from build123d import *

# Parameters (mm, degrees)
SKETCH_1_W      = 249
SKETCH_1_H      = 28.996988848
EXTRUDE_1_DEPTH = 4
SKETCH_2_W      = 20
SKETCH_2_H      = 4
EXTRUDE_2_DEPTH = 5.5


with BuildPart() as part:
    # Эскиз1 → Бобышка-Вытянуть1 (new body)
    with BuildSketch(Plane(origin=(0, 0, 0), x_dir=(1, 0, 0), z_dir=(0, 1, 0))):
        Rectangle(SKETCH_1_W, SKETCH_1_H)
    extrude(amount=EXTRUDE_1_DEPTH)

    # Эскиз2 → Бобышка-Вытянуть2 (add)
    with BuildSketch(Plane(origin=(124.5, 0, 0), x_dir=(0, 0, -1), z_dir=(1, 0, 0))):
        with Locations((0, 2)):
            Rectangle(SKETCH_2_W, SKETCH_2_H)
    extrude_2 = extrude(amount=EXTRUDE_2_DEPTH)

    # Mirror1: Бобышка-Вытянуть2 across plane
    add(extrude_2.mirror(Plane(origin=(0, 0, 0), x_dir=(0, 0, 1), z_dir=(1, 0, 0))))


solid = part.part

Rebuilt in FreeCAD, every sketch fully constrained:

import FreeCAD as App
import Part
import Sketcher
Q = App.Units.Quantity


def add_polygon(sketch, points):
    """Adds a closed chain of lines whose ends are joined by coincident constraints."""
    first, n = sketch.GeometryCount, len(points)
    for a, b in zip(points, points[1:] + points[:1]):
        sketch.addGeometry(Part.LineSegment(App.Vector(*a, 0), App.Vector(*b, 0)), False)
    for i in range(n):
        sketch.addConstraint(Sketcher.Constraint("Coincident", first + i, 2, first + (i + 1) % n, 1))

doc = App.newDocument("Part")
body = doc.addObject("PartDesign::Body", "Body")

# Sketch on XZ plane
sketch1 = body.newObject("Sketcher::SketchObject", "Sketch")
sketch1.AttachmentSupport = (doc.getObject("XZ_Plane"), [""])
sketch1.MapMode = "FlatFace"
add_polygon(sketch1, [(-124, -14), (-124, 14), (124, 14), (124, -14)])  # lines 0-3
sketch1.addConstraint(Sketcher.Constraint("Vertical", 0))
sketch1.addConstraint(Sketcher.Constraint("Horizontal", 1))
sketch1.addConstraint(Sketcher.Constraint("Vertical", 2))
sketch1.addConstraint(Sketcher.Constraint("Horizontal", 3))
sketch1.addConstraint(Sketcher.Constraint("Symmetric", 0, 2, 2, 2, -1, 1))
sketch1.addConstraint(Sketcher.Constraint("DistanceX", 1, 1, 1, 2, Q("249 mm")))
sketch1.addConstraint(Sketcher.Constraint("DistanceY", 0, 1, 0, 2, Q("28.996989 mm")))
pad1 = body.newObject("PartDesign::Pad", "Pad")
pad1.Profile = sketch1
pad1.Length = 4
pad1.Reversed = True

# Sketch on YZ plane
sketch2 = body.newObject("Sketcher::SketchObject", "Sketch001")
sketch2.AttachmentSupport = (doc.getObject("YZ_Plane"), [""])
sketch2.MapMode = "FlatFace"
sketch2.AttachmentOffset = App.Placement(App.Vector(0, 0, 124.5), App.Rotation())
add_polygon(sketch2, [(4, 10), (0, 10), (0, -10), (4, -10)])  # lines 0-3
sketch2.addConstraint(Sketcher.Constraint("Horizontal", 0))
sketch2.addConstraint(Sketcher.Constraint("Vertical", 1))
sketch2.addConstraint(Sketcher.Constraint("Horizontal", 2))
sketch2.addConstraint(Sketcher.Constraint("Vertical", 3))
sketch2.addConstraint(Sketcher.Constraint("Symmetric", 0, 2, 1, 2, -1, 1))
sketch2.addConstraint(Sketcher.Constraint("DistanceX", 0, 2, 0, 1, Q("4 mm")))
sketch2.addConstraint(Sketcher.Constraint("DistanceY", 1, 2, 1, 1, Q("20 mm")))
pad2 = body.newObject("PartDesign::Pad", "Pad001")
pad2.Profile = sketch2
pad2.Length = 5.5
doc.recompute()

mirrored = body.newObject("PartDesign::Mirrored", "Mirrored")
mirrored.Originals = [pad2]
mirrored.MirrorPlane = (doc.getObject("YZ_Plane"), [""])
body.Tip = mirrored

doc.recompute()
